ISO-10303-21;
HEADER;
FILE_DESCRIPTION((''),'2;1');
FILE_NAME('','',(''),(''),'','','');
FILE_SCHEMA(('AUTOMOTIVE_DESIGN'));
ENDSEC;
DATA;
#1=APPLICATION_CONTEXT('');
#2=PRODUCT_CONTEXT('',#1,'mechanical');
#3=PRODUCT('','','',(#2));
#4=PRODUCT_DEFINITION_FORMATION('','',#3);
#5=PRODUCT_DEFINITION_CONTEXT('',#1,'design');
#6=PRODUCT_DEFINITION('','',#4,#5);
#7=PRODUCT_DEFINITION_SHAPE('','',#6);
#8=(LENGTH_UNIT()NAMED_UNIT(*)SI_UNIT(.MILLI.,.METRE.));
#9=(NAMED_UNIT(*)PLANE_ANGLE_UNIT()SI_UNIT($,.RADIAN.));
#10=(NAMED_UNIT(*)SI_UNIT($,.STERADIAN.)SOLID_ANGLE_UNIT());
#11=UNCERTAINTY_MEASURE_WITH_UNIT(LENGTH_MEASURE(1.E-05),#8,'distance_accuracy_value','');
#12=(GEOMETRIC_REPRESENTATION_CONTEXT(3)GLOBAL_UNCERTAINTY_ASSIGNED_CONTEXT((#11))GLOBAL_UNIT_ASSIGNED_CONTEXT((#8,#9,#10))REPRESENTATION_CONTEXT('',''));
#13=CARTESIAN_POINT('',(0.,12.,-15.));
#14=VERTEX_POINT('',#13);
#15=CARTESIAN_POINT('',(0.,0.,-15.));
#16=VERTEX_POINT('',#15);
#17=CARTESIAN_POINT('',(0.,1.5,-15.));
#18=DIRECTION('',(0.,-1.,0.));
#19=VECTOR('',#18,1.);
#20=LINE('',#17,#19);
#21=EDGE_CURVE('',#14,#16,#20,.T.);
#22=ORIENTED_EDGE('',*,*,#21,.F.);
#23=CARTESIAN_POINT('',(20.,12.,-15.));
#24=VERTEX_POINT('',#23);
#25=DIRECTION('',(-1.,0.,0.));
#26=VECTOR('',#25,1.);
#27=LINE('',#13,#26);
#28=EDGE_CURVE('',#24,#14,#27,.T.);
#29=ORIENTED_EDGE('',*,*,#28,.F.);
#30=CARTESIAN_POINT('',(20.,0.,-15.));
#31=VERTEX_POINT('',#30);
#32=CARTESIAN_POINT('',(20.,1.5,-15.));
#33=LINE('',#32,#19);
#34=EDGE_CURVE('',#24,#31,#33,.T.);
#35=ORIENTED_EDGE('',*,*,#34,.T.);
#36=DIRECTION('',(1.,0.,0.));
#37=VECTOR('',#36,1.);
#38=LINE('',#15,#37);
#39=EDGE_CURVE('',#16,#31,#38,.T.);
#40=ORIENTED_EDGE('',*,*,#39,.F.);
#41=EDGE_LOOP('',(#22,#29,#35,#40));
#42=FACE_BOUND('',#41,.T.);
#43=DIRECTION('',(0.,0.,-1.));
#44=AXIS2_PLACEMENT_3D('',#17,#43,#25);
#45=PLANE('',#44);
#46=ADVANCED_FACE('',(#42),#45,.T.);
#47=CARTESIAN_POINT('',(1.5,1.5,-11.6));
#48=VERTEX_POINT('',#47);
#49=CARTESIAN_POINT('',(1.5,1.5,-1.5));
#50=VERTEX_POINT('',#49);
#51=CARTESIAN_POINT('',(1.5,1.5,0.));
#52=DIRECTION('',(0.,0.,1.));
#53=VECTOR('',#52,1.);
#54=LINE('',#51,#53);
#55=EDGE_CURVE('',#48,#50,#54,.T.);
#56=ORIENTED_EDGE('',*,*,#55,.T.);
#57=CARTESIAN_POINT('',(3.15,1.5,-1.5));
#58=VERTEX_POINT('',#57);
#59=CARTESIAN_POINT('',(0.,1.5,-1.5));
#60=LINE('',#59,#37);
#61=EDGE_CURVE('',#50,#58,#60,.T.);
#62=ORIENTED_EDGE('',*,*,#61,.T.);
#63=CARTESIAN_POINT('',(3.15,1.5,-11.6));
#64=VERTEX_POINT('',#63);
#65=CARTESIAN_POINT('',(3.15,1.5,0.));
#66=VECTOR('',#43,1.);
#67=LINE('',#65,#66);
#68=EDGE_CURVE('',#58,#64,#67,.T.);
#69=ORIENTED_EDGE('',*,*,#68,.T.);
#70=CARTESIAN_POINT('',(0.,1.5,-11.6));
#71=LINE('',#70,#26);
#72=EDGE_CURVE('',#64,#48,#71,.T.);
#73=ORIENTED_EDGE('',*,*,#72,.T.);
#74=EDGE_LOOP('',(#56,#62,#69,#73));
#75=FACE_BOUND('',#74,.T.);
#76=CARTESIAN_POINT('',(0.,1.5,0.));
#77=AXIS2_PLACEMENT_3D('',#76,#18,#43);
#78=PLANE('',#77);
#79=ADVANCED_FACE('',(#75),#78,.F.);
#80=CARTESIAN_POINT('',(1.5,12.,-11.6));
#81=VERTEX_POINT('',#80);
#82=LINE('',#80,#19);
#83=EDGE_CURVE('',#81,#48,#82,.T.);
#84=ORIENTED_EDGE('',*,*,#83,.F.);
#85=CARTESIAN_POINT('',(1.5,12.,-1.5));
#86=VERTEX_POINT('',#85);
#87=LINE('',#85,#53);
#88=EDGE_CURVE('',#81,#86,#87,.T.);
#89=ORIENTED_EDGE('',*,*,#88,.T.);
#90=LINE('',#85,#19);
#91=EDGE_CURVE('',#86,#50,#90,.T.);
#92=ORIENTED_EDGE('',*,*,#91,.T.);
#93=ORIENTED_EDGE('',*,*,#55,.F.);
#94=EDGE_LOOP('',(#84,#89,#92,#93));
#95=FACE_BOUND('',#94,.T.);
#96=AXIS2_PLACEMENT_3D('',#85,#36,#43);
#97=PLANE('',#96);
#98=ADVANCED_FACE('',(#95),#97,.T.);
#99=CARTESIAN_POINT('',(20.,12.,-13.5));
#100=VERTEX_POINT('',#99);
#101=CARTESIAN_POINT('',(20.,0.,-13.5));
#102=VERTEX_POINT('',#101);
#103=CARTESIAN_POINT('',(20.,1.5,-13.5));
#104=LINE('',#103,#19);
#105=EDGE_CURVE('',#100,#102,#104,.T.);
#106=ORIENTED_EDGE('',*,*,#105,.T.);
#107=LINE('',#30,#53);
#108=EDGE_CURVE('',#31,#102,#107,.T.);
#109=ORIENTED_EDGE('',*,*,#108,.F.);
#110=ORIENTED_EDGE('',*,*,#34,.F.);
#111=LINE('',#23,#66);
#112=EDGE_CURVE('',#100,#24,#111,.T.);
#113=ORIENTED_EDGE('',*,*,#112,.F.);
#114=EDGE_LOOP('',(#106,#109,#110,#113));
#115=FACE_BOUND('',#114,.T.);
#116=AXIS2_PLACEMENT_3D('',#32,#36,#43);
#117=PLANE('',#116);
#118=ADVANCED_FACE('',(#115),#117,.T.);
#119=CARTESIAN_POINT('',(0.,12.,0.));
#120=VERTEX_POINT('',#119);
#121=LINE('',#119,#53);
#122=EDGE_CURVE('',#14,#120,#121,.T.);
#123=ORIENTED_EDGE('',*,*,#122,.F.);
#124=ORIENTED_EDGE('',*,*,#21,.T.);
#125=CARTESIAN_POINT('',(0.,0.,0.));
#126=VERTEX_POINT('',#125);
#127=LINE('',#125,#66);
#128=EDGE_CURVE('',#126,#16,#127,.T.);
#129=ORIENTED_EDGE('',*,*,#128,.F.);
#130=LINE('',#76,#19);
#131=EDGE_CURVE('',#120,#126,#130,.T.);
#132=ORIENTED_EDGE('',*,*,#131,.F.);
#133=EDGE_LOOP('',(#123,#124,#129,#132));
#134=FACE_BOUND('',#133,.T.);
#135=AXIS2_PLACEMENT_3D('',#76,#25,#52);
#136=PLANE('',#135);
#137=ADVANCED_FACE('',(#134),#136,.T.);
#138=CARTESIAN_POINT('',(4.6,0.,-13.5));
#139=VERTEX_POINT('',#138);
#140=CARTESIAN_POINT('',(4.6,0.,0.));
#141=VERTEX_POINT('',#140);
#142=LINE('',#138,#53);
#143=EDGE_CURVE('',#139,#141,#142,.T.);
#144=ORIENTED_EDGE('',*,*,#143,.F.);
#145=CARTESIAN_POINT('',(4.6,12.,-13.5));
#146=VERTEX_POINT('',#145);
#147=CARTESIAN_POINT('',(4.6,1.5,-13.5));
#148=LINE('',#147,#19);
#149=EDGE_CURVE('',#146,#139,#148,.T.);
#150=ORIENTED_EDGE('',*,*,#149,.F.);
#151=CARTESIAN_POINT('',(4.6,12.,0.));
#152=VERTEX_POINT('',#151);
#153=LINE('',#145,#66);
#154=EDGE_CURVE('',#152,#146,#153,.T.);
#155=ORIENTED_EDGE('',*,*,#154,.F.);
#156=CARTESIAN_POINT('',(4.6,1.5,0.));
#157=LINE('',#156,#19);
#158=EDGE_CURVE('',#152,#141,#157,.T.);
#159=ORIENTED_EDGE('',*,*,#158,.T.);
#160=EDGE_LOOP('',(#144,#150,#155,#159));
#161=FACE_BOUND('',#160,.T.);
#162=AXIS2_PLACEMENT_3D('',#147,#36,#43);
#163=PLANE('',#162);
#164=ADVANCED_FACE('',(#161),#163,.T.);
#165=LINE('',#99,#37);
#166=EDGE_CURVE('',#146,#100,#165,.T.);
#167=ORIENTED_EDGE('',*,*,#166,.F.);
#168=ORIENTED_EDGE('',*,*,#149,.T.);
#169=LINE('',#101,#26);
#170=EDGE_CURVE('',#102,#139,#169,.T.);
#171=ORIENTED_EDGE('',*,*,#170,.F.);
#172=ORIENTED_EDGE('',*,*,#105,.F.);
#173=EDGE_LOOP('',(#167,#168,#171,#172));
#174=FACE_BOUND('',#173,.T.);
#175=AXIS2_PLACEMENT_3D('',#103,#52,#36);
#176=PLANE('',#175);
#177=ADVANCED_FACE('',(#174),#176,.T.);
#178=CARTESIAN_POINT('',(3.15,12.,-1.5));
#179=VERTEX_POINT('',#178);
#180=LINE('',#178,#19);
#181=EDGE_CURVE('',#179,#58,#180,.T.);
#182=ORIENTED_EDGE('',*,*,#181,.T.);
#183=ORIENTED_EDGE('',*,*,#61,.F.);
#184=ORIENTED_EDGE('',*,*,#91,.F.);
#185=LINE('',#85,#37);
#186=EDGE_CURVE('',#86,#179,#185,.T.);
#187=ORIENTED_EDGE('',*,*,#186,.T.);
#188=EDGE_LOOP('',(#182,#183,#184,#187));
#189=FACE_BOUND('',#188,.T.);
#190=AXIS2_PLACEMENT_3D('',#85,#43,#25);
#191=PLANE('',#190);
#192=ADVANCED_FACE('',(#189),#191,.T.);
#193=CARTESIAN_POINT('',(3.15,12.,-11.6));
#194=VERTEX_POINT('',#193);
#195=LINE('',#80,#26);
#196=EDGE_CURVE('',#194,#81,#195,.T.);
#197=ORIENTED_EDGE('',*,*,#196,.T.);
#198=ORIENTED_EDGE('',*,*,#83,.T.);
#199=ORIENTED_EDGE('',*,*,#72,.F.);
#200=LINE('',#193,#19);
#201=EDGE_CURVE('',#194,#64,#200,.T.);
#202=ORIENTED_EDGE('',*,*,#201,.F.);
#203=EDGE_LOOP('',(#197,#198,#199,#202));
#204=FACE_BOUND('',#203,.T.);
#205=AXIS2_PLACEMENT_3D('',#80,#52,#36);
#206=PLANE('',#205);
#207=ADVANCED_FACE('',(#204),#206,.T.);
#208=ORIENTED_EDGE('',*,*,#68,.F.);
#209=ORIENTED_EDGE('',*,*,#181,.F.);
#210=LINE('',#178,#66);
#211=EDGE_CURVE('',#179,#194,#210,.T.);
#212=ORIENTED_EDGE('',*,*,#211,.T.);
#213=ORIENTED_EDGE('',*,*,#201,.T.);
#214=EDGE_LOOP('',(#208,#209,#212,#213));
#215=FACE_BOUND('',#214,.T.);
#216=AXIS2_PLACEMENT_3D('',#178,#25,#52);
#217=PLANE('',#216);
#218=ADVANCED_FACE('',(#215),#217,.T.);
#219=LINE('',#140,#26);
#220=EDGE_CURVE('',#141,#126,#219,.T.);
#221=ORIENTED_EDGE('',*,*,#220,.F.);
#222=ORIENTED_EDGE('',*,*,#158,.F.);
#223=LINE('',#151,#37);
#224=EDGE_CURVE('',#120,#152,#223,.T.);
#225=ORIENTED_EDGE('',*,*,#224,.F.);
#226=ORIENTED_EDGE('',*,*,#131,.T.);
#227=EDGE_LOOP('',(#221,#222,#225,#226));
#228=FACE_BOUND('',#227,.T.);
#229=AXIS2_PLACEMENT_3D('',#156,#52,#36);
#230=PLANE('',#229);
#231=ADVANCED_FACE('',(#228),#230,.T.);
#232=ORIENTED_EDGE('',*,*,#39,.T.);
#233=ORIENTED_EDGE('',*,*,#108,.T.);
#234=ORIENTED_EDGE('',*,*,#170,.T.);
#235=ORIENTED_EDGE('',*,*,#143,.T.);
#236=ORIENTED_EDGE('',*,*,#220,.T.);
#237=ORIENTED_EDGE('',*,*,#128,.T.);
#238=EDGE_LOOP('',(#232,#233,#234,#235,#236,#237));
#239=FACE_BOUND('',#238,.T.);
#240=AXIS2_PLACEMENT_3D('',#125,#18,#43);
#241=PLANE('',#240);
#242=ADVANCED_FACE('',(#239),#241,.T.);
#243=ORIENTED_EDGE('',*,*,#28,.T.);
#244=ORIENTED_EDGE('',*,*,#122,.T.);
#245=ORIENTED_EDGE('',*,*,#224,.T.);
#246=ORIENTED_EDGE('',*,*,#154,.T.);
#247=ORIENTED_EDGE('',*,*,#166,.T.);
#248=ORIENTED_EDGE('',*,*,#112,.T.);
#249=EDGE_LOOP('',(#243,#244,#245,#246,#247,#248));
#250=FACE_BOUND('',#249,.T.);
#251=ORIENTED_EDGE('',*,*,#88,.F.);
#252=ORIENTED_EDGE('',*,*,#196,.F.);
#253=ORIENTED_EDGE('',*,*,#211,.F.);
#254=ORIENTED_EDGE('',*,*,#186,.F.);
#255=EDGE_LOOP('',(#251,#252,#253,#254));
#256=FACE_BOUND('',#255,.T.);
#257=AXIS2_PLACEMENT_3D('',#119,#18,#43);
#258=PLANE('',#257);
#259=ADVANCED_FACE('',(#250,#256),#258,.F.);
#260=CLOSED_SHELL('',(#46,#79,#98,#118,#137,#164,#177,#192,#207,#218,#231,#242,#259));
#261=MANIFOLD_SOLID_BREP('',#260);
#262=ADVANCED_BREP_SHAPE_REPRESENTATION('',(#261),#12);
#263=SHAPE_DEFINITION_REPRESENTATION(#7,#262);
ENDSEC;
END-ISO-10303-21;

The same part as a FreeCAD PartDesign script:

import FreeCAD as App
import Part
import Sketcher
from FreeCAD import Vector
Q = App.Units.Quantity


def add_polygon(sketch, points):
    """Adds a closed chain of lines whose ends are joined by coincident constraints."""
    first, n = sketch.GeometryCount, len(points)
    for a, b in zip(points, points[1:] + points[:1]):
        sketch.addGeometry(Part.LineSegment(App.Vector(*a, 0), App.Vector(*b, 0)), False)
    for i in range(n):
        sketch.addConstraint(Sketcher.Constraint("Coincident", first + i, 2, first + (i + 1) % n, 1))

doc = App.newDocument("Part")
params = doc.addObject("Spreadsheet::Sheet", "Params")
for row, (alias, value) in enumerate([
    ("sketch1_width", "20 mm"),
    ("sketch1_height", "15 mm"),
    ("sketch1_width2", "4.6 mm"),
    ("sketch1_height2", "13.5 mm"),
    ("pad1_length", "1.5 mm"),
    ("sketch2_width", "20 mm"),
    ("sketch2_height", "15 mm"),
    ("sketch2_width2", "4.6 mm"),
    ("sketch2_height2", "13.5 mm"),
    ("sketch2_height3", "10.1 mm"),
    ("pad2_length", "12 mm"),
], start=1):
    params.set(f"A{row}", alias)
    params.set(f"B{row}", "=" + value)
    params.setAlias(f"B{row}", alias)

body = doc.addObject("PartDesign::Body", "Body")

sketch1 = body.newObject("Sketcher::SketchObject", "Sketch")
sketch1.AttachmentSupport = (doc.getObject("XZ_Plane"), [""])
sketch1.MapMode = "FlatFace"
add_polygon(sketch1, [(0, -15), (0, 0), (4.6, 0), (4.6, -13.5), (20, -13.5), (20, -15)])
sketch1.addConstraint(Sketcher.Constraint("Vertical", 0))
sketch1.addConstraint(Sketcher.Constraint("Horizontal", 1))
sketch1.addConstraint(Sketcher.Constraint("Vertical", 2))
sketch1.addConstraint(Sketcher.Constraint("Horizontal", 3))
sketch1.addConstraint(Sketcher.Constraint("Vertical", 4))
sketch1.addConstraint(Sketcher.Constraint("Horizontal", 5))
sketch1.addConstraint(Sketcher.Constraint("Coincident", 0, 2, -1, 1))
sketch1.addConstraint(Sketcher.Constraint("DistanceX", 5, 2, 5, 1, Q("20 mm")))
sketch1.addConstraint(Sketcher.Constraint("DistanceY", 0, 1, 0, 2, Q("15 mm")))
sketch1.addConstraint(Sketcher.Constraint("DistanceX", 1, 1, 1, 2, Q("4.6 mm")))
sketch1.addConstraint(Sketcher.Constraint("DistanceY", 2, 2, 2, 1, Q("13.5 mm")))
sketch1.setExpression("Constraints[13]", "Params.sketch1_width")
sketch1.setExpression("Constraints[14]", "Params.sketch1_height")
sketch1.setExpression("Constraints[15]", "Params.sketch1_width2")
sketch1.setExpression("Constraints[16]", "Params.sketch1_height2")
pad1 = body.newObject("PartDesign::Pad", "Pad")
pad1.Profile = sketch1
pad1.setExpression("Length", "Params.pad1_length")
pad1.Reversed = True

sketch2 = body.newObject("Sketcher::SketchObject", "Sketch001")
sketch2.AttachmentSupport = (doc.getObject("XZ_Plane"), [""])
sketch2.MapMode = "FlatFace"
add_polygon(sketch2, [(0, -15), (0, 0), (4.6, 0), (4.6, -13.5), (20, -13.5), (20, -15)])
add_polygon(sketch2, [(1.5, -1.5), (1.5, -11.6), (3.1, -11.6), (3.1, -1.5)])
sketch2.addConstraint(Sketcher.Constraint("Vertical", 0))
sketch2.addConstraint(Sketcher.Constraint("Horizontal", 1))
sketch2.addConstraint(Sketcher.Constraint("Vertical", 2))
sketch2.addConstraint(Sketcher.Constraint("Horizontal", 3))
sketch2.addConstraint(Sketcher.Constraint("Vertical", 4))
sketch2.addConstraint(Sketcher.Constraint("Horizontal", 5))
sketch2.addConstraint(Sketcher.Constraint("Vertical", 6))
sketch2.addConstraint(Sketcher.Constraint("Horizontal", 7))
sketch2.addConstraint(Sketcher.Constraint("Vertical", 8))
sketch2.addConstraint(Sketcher.Constraint("Horizontal", 9))
sketch2.addConstraint(Sketcher.Constraint("Coincident", 0, 2, -1, 1))
sketch2.addConstraint(Sketcher.Constraint("DistanceX", 5, 2, 5, 1, Q("20 mm")))
sketch2.addConstraint(Sketcher.Constraint("DistanceY", 0, 1, 0, 2, Q("15 mm")))
sketch2.addConstraint(Sketcher.Constraint("DistanceX", 1, 1, 1, 2, Q("4.6 mm")))
sketch2.addConstraint(Sketcher.Constraint("DistanceY", 2, 2, 2, 1, Q("13.5 mm")))
sketch2.addConstraint(Sketcher.Constraint("DistanceY", 6, 2, 6, 1, Q("10.1 mm")))
sketch2.addConstraint(Sketcher.Constraint("DistanceY", 2, 2, 8, 2, Q("12 mm")))
sketch2.addConstraint(Sketcher.Constraint("DistanceX", 7, 1, 7, 2, Q("1.65 mm")))
sketch2.addConstraint(Sketcher.Constraint("DistanceX", -1, 1, 6, 2, Q("1.5 mm")))
sketch2.setExpression("Constraints[21]", "Params.sketch2_width")
sketch2.setExpression("Constraints[22]", "Params.sketch2_height")
sketch2.setExpression("Constraints[23]", "Params.sketch2_width2")
sketch2.setExpression("Constraints[24]", "Params.sketch2_height2")
sketch2.setExpression("Constraints[25]", "Params.sketch2_height3")
pad2 = body.newObject("PartDesign::Pad", "Pad001")
pad2.Profile = sketch2
pad2.setExpression("Length", "Params.pad2_length")
pad2.Reversed = True

doc.recompute()
